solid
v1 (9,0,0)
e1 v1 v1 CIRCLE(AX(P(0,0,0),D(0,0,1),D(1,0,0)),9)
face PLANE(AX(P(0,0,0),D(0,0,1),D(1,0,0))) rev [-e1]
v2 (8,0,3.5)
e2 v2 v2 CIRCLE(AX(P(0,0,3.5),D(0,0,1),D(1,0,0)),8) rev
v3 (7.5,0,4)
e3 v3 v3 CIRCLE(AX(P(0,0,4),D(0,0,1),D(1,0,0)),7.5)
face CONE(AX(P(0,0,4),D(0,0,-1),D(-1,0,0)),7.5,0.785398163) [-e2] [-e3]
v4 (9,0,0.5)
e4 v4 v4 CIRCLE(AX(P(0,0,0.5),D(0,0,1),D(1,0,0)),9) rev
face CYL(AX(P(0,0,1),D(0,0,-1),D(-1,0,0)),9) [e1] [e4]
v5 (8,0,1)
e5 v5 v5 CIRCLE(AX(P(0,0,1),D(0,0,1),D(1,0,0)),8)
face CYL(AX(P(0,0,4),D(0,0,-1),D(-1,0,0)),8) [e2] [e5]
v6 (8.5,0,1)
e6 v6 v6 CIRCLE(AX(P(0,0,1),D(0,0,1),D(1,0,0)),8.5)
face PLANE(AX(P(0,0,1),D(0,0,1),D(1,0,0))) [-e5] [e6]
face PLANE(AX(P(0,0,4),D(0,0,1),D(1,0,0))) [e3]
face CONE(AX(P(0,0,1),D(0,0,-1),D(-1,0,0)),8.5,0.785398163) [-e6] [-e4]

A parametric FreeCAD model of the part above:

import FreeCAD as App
import Part
import Sketcher


def edges_at(feature, points):
    """Names of the edges that pass closest to the given points."""
    edges = feature.Shape.Edges
    near = lambda p: min(range(len(edges)), key=lambda i: edges[i].distToShape(Part.Vertex(*p))[0])
    return sorted({f"Edge{near(p) + 1}" for p in points})

doc = App.newDocument("Part")
body = doc.addObject("PartDesign::Body", "Body")

# Sketch on XY plane
sketch1 = body.newObject("Sketcher::SketchObject", "Sketch")
sketch1.AttachmentSupport = (doc.getObject("XY_Plane"), [""])
sketch1.MapMode = "FlatFace"
sketch1.addGeometry(Part.Circle(App.Vector(0, 0, 0), App.Vector(0, 0, 1), 9), False)
sketch1.addConstraint(Sketcher.Constraint("Coincident", 0, 3, -1, 1))
sketch1.addConstraint(Sketcher.Constraint("Diameter", 0, 18.0))
pad1 = body.newObject("PartDesign::Pad", "Pad")
pad1.Profile = sketch1
pad1.Length = 1
doc.recompute()

chamfer = body.newObject("PartDesign::Chamfer", "Chamfer")
chamfer.Base = (pad1, edges_at(pad1, [(-9, 0, 1)]))
chamfer.Size = 0.5

# Sketch on XY plane
sketch2 = body.newObject("Sketcher::SketchObject", "Sketch001")
sketch2.AttachmentSupport = (doc.getObject("XY_Plane"), [""])
sketch2.MapMode = "FlatFace"
sketch2.AttachmentOffset = App.Placement(App.Vector(0, 0, 1), App.Rotation())
sketch2.addGeometry(Part.Circle(App.Vector(0, 0, 0), App.Vector(0, 0, 1), 8), False)
sketch2.addConstraint(Sketcher.Constraint("Coincident", 0, 3, -1, 1))
sketch2.addConstraint(Sketcher.Constraint("Diameter", 0, 16.0))
pad2 = body.newObject("PartDesign::Pad", "Pad001")
pad2.Profile = sketch2
pad2.Length = 3
doc.recompute()

chamfer2 = body.newObject("PartDesign::Chamfer", "Chamfer001")
chamfer2.Base = (pad2, edges_at(pad2, [(-8, 0, 4)]))
chamfer2.Size = 0.5

doc.recompute()
